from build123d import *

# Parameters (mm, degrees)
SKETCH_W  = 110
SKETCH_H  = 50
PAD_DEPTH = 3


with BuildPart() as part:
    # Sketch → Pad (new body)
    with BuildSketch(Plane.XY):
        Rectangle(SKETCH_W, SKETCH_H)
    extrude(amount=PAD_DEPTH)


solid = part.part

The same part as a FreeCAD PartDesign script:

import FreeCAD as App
import Part
import Sketcher

V = App.Vector
Q = App.Units.Quantity

doc = App.newDocument("Part")
body = doc.addObject("PartDesign::Body", "Body")

sketch1 = doc.addObject("Sketcher::SketchObject", "Sketch")
body.addObject(sketch1)
sketch1.AttachmentSupport = (doc.XY_Plane, [""])
sketch1.MapMode = "FlatFace"
sketch1.addGeometry([
    Part.LineSegment(V(-55, 25, 0), V(-55, -25, 0)),
    Part.LineSegment(V(-55, -25, 0), V(55, -25, 0)),
    Part.LineSegment(V(55, -25, 0), V(55, 25, 0)),
    Part.LineSegment(V(55, 25, 0), V(-55, 25, 0)),
], False)
sketch1.addConstraint([
    Sketcher.Constraint("Coincident", 0, 2, 1, 1),
    Sketcher.Constraint("Coincident", 1, 2, 2, 1),
    Sketcher.Constraint("Coincident", 2, 2, 3, 1),
    Sketcher.Constraint("Coincident", 3, 2, 0, 1),
    Sketcher.Constraint("Vertical", 0),
    Sketcher.Constraint("Horizontal", 1),
    Sketcher.Constraint("Vertical", 2),
    Sketcher.Constraint("Horizontal", 3),
    Sketcher.Constraint("Symmetric", 0, 2, 2, 2, -1, 1),
    Sketcher.Constraint("DistanceX", 1, 1, 1, 2, Q("110 mm")),
    Sketcher.Constraint("DistanceY", 0, 2, 0, 1, Q("50 mm")),
])
pad1 = doc.addObject("PartDesign::Pad", "Pad")
body.addObject(pad1)
pad1.Profile = sketch1
pad1.Length = 3

doc.recompute()
